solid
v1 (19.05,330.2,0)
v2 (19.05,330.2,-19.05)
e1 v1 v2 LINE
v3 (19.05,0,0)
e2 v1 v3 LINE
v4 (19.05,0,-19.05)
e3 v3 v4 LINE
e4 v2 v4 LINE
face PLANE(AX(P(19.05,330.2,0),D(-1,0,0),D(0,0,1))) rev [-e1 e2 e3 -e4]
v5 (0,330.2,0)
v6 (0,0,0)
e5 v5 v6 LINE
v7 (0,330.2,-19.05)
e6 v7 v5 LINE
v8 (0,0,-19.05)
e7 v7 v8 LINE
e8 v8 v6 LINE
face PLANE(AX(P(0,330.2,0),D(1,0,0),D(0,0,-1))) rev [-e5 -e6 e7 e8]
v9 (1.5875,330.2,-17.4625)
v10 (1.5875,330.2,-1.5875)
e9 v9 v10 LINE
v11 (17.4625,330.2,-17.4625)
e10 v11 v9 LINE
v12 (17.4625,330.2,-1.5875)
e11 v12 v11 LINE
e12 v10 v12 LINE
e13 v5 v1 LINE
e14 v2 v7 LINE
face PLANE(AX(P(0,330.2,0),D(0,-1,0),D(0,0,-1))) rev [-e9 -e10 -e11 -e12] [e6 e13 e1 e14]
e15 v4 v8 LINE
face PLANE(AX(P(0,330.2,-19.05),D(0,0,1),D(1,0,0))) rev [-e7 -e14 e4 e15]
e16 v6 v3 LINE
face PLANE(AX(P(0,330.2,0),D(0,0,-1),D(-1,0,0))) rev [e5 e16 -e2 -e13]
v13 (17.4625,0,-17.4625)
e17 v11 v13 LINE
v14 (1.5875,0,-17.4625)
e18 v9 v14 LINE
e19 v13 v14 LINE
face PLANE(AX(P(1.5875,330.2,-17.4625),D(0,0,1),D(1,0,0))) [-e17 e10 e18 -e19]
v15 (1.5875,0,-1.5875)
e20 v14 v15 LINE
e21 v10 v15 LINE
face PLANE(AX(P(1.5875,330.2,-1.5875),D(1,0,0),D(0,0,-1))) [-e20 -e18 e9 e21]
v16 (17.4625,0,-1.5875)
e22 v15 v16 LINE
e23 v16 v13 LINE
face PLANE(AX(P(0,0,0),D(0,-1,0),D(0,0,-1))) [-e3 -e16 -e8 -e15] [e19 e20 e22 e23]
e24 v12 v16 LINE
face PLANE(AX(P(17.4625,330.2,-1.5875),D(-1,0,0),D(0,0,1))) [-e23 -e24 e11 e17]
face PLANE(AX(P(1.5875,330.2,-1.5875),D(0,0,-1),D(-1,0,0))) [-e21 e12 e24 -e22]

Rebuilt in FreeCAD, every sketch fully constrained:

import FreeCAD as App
import Part
import Sketcher

V = App.Vector
Q = App.Units.Quantity


def add_polygon(sketch, points):
    """Adds a closed chain of lines whose ends are joined by coincident constraints."""
    first, n = sketch.GeometryCount, len(points)
    for a, b in zip(points, points[1:] + points[:1]):
        sketch.addGeometry(Part.LineSegment(App.Vector(*a, 0), App.Vector(*b, 0)), False)
    for i in range(n):
        sketch.addConstraint(Sketcher.Constraint("Coincident", first + i, 2, first + (i + 1) % n, 1))

doc = App.newDocument("Part")
body = doc.addObject("PartDesign::Body", "Body")

sketch1 = doc.addObject("Sketcher::SketchObject", "Sketch")
body.addObject(sketch1)
sketch1.AttachmentSupport = (doc.XZ_Plane, [""])
sketch1.MapMode = "FlatFace"
add_polygon(sketch1, [(0, -19), (0, 0), (19, 0), (19, -19)])
add_polygon(sketch1, [(17, -2), (2, -2), (2, -17), (17, -17)])
sketch1.addConstraint([
    Sketcher.Constraint("Vertical", 0),
    Sketcher.Constraint("Horizontal", 1),
    Sketcher.Constraint("Vertical", 2),
    Sketcher.Constraint("Horizontal", 3),
    Sketcher.Constraint("Horizontal", 4),
    Sketcher.Constraint("Vertical", 5),
    Sketcher.Constraint("Horizontal", 6),
    Sketcher.Constraint("Vertical", 7),
    Sketcher.Constraint("Coincident", 0, 2, -1, 1),
    Sketcher.Constraint("Equal", 3, 0),
    Sketcher.Constraint("Equal", 6, 5),
    Sketcher.Constraint("DistanceX", 1, 1, 1, 2, Q("0.75 in")),
    Sketcher.Constraint("DistanceX", 4, 2, 4, 1, Q("0.625 in")),
    Sketcher.Constraint("DistanceX", -1, 1, 4, 2, Q("0.0625 in")),
    Sketcher.Constraint("DistanceY", 4, 2, -1, 1, Q("0.0625 in")),
])
pad1 = doc.addObject("PartDesign::Pad", "Pad")
body.addObject(pad1)
pad1.Profile = sketch1
pad1.Length = Q("13 in")
pad1.Reversed = True

doc.recompute()
